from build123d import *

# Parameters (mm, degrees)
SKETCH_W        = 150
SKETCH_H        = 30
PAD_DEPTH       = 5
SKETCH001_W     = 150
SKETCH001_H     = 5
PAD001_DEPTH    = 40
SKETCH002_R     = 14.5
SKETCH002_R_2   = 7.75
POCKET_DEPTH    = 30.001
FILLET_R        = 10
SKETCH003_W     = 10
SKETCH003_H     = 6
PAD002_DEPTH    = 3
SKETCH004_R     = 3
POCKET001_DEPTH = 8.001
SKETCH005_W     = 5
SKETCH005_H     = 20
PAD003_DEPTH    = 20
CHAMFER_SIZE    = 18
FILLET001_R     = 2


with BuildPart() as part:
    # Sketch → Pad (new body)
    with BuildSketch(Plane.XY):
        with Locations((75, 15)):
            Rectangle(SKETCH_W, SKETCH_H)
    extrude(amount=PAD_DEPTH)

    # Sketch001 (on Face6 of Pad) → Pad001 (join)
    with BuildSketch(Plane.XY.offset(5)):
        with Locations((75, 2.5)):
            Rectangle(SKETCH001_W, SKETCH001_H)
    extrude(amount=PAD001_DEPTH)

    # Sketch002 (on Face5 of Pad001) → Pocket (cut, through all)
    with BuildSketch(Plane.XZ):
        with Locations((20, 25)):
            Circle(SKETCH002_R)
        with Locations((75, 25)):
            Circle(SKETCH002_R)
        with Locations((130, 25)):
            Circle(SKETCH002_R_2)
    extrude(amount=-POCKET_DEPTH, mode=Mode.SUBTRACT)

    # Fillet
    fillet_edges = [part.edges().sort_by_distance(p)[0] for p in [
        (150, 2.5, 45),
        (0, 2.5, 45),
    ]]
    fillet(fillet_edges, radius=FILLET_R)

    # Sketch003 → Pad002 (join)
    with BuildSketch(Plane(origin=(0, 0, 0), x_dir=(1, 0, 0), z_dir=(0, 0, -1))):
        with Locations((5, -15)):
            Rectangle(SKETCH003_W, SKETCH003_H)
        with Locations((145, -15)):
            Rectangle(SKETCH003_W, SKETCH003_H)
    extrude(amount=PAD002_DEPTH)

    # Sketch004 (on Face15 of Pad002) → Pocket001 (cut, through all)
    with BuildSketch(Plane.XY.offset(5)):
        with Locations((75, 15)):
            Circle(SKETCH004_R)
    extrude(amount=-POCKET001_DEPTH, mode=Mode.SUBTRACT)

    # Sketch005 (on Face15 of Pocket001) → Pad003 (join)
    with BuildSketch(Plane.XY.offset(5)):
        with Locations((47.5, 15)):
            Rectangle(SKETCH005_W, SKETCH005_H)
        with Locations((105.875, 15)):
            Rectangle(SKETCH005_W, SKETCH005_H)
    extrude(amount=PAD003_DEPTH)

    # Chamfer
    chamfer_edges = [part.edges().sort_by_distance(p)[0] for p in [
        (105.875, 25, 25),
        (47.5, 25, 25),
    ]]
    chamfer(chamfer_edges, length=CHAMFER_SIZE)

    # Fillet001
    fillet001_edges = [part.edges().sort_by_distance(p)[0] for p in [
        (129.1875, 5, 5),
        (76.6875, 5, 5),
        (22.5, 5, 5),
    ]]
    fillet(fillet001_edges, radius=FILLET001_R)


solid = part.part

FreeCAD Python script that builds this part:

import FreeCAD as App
import Part
import Sketcher
from FreeCAD import Vector


def edges_at(feature, points):
    """Names of the edges that pass closest to the given points."""
    edges = feature.Shape.Edges
    near = lambda p: min(range(len(edges)), key=lambda i: edges[i].distToShape(Part.Vertex(*p))[0])
    return sorted({f"Edge{near(p) + 1}" for p in points})

doc = App.newDocument("Part")
body = doc.addObject("PartDesign::Body", "Body")

# Sketch on XY plane
sketch1 = body.newObject("Sketcher::SketchObject", "Sketch")
sketch1.AttachmentSupport = (doc.getObject("XY_Plane"), [""])
sketch1.MapMode = "FlatFace"
sketch1.addGeometry([
    Part.LineSegment(Vector(0, 30, 0), Vector(0, 0, 0)),
    Part.LineSegment(Vector(0, 0, 0), Vector(150, 0, 0)),
    Part.LineSegment(Vector(150, 0, 0), Vector(150, 30, 0)),
    Part.LineSegment(Vector(150, 30, 0), Vector(0, 30, 0)),
], False)
sketch1.addConstraint([
    Sketcher.Constraint("Coincident", 0, 2, 1, 1),
    Sketcher.Constraint("Coincident", 1, 2, 2, 1),
    Sketcher.Constraint("Coincident", 2, 2, 3, 1),
    Sketcher.Constraint("Coincident", 3, 2, 0, 1),
    Sketcher.Constraint("Vertical", 0),
    Sketcher.Constraint("Horizontal", 1),
    Sketcher.Constraint("Vertical", 2),
    Sketcher.Constraint("Horizontal", 3),
    Sketcher.Constraint("Coincident", 0, 2, -1, 1),
    Sketcher.Constraint("DistanceX", 1, 1, 1, 2, 150.0),
    Sketcher.Constraint("DistanceY", 0, 2, 0, 1, 30.0),
])
pad1 = body.newObject("PartDesign::Pad", "Pad")
pad1.Profile = sketch1
pad1.Length = 5

# Sketch on XY plane
sketch2 = body.newObject("Sketcher::SketchObject", "Sketch001")
sketch2.AttachmentSupport = (doc.getObject("XY_Plane"), [""])
sketch2.MapMode = "FlatFace"
sketch2.AttachmentOffset = App.Placement(Vector(0, 0, 5), App.Rotation())
sketch2.addGeometry([
    Part.LineSegment(Vector(0, 5, 0), Vector(0, 0, 0)),
    Part.LineSegment(Vector(0, 0, 0), Vector(150, 0, 0)),
    Part.LineSegment(Vector(150, 0, 0), Vector(150, 5, 0)),
    Part.LineSegment(Vector(150, 5, 0), Vector(0, 5, 0)),
], False)
sketch2.addConstraint([
    Sketcher.Constraint("Coincident", 0, 2, 1, 1),
    Sketcher.Constraint("Coincident", 1, 2, 2, 1),
    Sketcher.Constraint("Coincident", 2, 2, 3, 1),
    Sketcher.Constraint("Coincident", 3, 2, 0, 1),
    Sketcher.Constraint("Vertical", 0),
    Sketcher.Constraint("Horizontal", 1),
    Sketcher.Constraint("Vertical", 2),
    Sketcher.Constraint("Horizontal", 3),
    Sketcher.Constraint("Coincident", 0, 2, -1, 1),
    Sketcher.Constraint("DistanceX", 1, 1, 1, 2, 150.0),
    Sketcher.Constraint("DistanceY", 0, 2, 0, 1, 5.0),
])
pad2 = body.newObject("PartDesign::Pad", "Pad001")
pad2.Profile = sketch2
pad2.Length = 40

# Sketch on XZ plane
sketch3 = body.newObject("Sketcher::SketchObject", "Sketch002")
sketch3.AttachmentSupport = (doc.getObject("XZ_Plane"), [""])
sketch3.MapMode = "FlatFace"
sketch3.addGeometry([
    Part.Circle(Vector(20, 25, 0), Vector(0, 0, 1), 14.5),
    Part.Circle(Vector(75, 25, 0), Vector(0, 0, 1), 14.5),
    Part.Circle(Vector(130, 25, 0), Vector(0, 0, 1), 7.75),
], False)
sketch3.addConstraint([
    Sketcher.Constraint("Equal", 0, 1),
    Sketcher.Constraint("Horizontal", 0, 3, 1, 3),
    Sketcher.Constraint("Horizontal", 1, 3, 2, 3),
    Sketcher.Constraint("Diameter", 0, 29.0),
    Sketcher.Constraint("Diameter", 2, 15.5),
    Sketcher.Constraint("DistanceX", -1, 1, 0, 3, 20.0),
    Sketcher.Constraint("DistanceY", -1, 1, 0, 3, 25.0),
    Sketcher.Constraint("DistanceX", -1, 1, 1, 3, 75.0),
    Sketcher.Constraint("DistanceX", -1, 1, 2, 3, 130.0),
])
pocket1 = body.newObject("PartDesign::Pocket", "Pocket")
pocket1.Profile = sketch3
pocket1.Type = "ThroughAll"
doc.recompute()

fillet = body.newObject("PartDesign::Fillet", "Fillet")
fillet.Base = (pocket1, edges_at(pocket1, [(150, 2.5, 45), (0, 2.5, 45)]))
fillet.Radius = 10

# Sketch on XY plane
sketch4 = body.newObject("Sketcher::SketchObject", "Sketch003")
sketch4.AttachmentSupport = (doc.getObject("XY_Plane"), [""])
sketch4.MapMode = "FlatFace"
sketch4.addGeometry([
    Part.LineSegment(Vector(0, 12, 0), Vector(0, 18, 0)),  # 0
    Part.LineSegment(Vector(0, 18, 0), Vector(10, 18, 0)),  # 1
    Part.LineSegment(Vector(10, 18, 0), Vector(10, 12, 0)),  # 2
    Part.LineSegment(Vector(10, 12, 0), Vector(0, 12, 0)),  # 3
    Part.LineSegment(Vector(140, 12, 0), Vector(140, 18, 0)),  # 4
    Part.LineSegment(Vector(140, 18, 0), Vector(150, 18, 0)),  # 5
    Part.LineSegment(Vector(150, 18, 0), Vector(150, 12, 0)),  # 6
    Part.LineSegment(Vector(150, 12, 0), Vector(140, 12, 0)),  # 7
], False)
sketch4.addConstraint([
    Sketcher.Constraint("Coincident", 0, 2, 1, 1),
    Sketcher.Constraint("Coincident", 1, 2, 2, 1),
    Sketcher.Constraint("Coincident", 2, 2, 3, 1),
    Sketcher.Constraint("Coincident", 3, 2, 0, 1),
    Sketcher.Constraint("Coincident", 4, 2, 5, 1),
    Sketcher.Constraint("Coincident", 5, 2, 6, 1),
    Sketcher.Constraint("Coincident", 6, 2, 7, 1),
    Sketcher.Constraint("Coincident", 7, 2, 4, 1),
    Sketcher.Constraint("Vertical", 0),
    Sketcher.Constraint("Horizontal", 1),
    Sketcher.Constraint("Vertical", 2),
    Sketcher.Constraint("Horizontal", 3),
    Sketcher.Constraint("Vertical", 4),
    Sketcher.Constraint("Horizontal", 5),
    Sketcher.Constraint("Vertical", 6),
    Sketcher.Constraint("Horizontal", 7),
    Sketcher.Constraint("PointOnObject", 0, 2, -2),
    Sketcher.Constraint("Horizontal", 1, 2, 4, 2),
    Sketcher.Constraint("Horizontal", 3, 2, 6, 2),
    Sketcher.Constraint("Equal", 3, 5),
    Sketcher.Constraint("DistanceX", 1, 1, 1, 2, 10.0),
    Sketcher.Constraint("DistanceY", 0, 1, 0, 2, 6.0),
    Sketcher.Constraint("DistanceY", -1, 1, 0, 2, 18.0),
    Sketcher.Constraint("DistanceX", -1, 1, 4, 2, 140.0),
])
pad3 = body.newObject("PartDesign::Pad", "Pad002")
pad3.Profile = sketch4
pad3.Length = 3
pad3.Reversed = True

# Sketch on XY plane
sketch5 = body.newObject("Sketcher::SketchObject", "Sketch004")
sketch5.AttachmentSupport = (doc.getObject("XY_Plane"), [""])
sketch5.MapMode = "FlatFace"
sketch5.AttachmentOffset = App.Placement(Vector(0, 0, 5), App.Rotation())
sketch5.addGeometry(Part.Circle(Vector(75, 15, 0), Vector(0, 0, 1), 3), False)
sketch5.addConstraint([
    Sketcher.Constraint("Diameter", 0, 6.0),
    Sketcher.Constraint("DistanceX", -1, 1, 0, 3, 75.0),
    Sketcher.Constraint("DistanceY", -1, 1, 0, 3, 15.0),
])
pocket2 = body.newObject("PartDesign::Pocket", "Pocket001")
pocket2.Profile = sketch5
pocket2.Type = "ThroughAll"

# Sketch on XY plane
sketch6 = body.newObject("Sketcher::SketchObject", "Sketch005")
sketch6.AttachmentSupport = (doc.getObject("XY_Plane"), [""])
sketch6.MapMode = "FlatFace"
sketch6.AttachmentOffset = App.Placement(Vector(0, 0, 5), App.Rotation())
sketch6.addGeometry([
    Part.LineSegment(Vector(45, 25, 0), Vector(45, 5, 0)),  # 0
    Part.LineSegment(Vector(45, 5, 0), Vector(50, 5, 0)),  # 1
    Part.LineSegment(Vector(50, 5, 0), Vector(50, 25, 0)),  # 2
    Part.LineSegment(Vector(50, 25, 0), Vector(45, 25, 0)),  # 3
    Part.LineSegment(Vector(103.375, 25, 0), Vector(103.375, 5, 0)),  # 4
    Part.LineSegment(Vector(103.375, 5, 0), Vector(108.375, 5, 0)),  # 5
    Part.LineSegment(Vector(108.375, 5, 0), Vector(108.375, 25, 0)),  # 6
    Part.LineSegment(Vector(108.375, 25, 0), Vector(103.375, 25, 0)),  # 7
], False)
sketch6.addConstraint([
    Sketcher.Constraint("Coincident", 0, 2, 1, 1),
    Sketcher.Constraint("Coincident", 1, 2, 2, 1),
    Sketcher.Constraint("Coincident", 2, 2, 3, 1),
    Sketcher.Constraint("Coincident", 3, 2, 0, 1),
    Sketcher.Constraint("Coincident", 4, 2, 5, 1),
    Sketcher.Constraint("Coincident", 5, 2, 6, 1),
    Sketcher.Constraint("Coincident", 6, 2, 7, 1),
    Sketcher.Constraint("Coincident", 7, 2, 4, 1),
    Sketcher.Constraint("Vertical", 0),
    Sketcher.Constraint("Horizontal", 1),
    Sketcher.Constraint("Vertical", 2),
    Sketcher.Constraint("Horizontal", 3),
    Sketcher.Constraint("Vertical", 4),
    Sketcher.Constraint("Horizontal", 5),
    Sketcher.Constraint("Vertical", 6),
    Sketcher.Constraint("Horizontal", 7),
    Sketcher.Constraint("Horizontal", 1, 2, 4, 2),
    Sketcher.Constraint("Horizontal", 3, 2, 6, 2),
    Sketcher.Constraint("Equal", 3, 5),
    Sketcher.Constraint("DistanceX", 1, 1, 1, 2, 5.0),
    Sketcher.Constraint("DistanceY", 0, 2, 0, 1, 20.0),
    Sketcher.Constraint("DistanceX", -1, 1, 0, 2, 45.0),
    Sketcher.Constraint("DistanceY", -1, 1, 0, 2, 5.0),
    Sketcher.Constraint("DistanceX", -1, 1, 4, 2, 103.375),
])
pad4 = body.newObject("PartDesign::Pad", "Pad003")
pad4.Profile = sketch6
pad4.Length = 20
doc.recompute()

chamfer = body.newObject("PartDesign::Chamfer", "Chamfer")
chamfer.Base = (pad4, edges_at(pad4, [(105.875, 25, 25), (47.5, 25, 25)]))
chamfer.Size = 18
doc.recompute()

fillet2 = body.newObject("PartDesign::Fillet", "Fillet001")
fillet2.Base = (chamfer, edges_at(chamfer, [(129.188, 5, 5), (76.688, 5, 5), (22.5, 5, 5)]))
fillet2.Radius = 2

doc.recompute()
